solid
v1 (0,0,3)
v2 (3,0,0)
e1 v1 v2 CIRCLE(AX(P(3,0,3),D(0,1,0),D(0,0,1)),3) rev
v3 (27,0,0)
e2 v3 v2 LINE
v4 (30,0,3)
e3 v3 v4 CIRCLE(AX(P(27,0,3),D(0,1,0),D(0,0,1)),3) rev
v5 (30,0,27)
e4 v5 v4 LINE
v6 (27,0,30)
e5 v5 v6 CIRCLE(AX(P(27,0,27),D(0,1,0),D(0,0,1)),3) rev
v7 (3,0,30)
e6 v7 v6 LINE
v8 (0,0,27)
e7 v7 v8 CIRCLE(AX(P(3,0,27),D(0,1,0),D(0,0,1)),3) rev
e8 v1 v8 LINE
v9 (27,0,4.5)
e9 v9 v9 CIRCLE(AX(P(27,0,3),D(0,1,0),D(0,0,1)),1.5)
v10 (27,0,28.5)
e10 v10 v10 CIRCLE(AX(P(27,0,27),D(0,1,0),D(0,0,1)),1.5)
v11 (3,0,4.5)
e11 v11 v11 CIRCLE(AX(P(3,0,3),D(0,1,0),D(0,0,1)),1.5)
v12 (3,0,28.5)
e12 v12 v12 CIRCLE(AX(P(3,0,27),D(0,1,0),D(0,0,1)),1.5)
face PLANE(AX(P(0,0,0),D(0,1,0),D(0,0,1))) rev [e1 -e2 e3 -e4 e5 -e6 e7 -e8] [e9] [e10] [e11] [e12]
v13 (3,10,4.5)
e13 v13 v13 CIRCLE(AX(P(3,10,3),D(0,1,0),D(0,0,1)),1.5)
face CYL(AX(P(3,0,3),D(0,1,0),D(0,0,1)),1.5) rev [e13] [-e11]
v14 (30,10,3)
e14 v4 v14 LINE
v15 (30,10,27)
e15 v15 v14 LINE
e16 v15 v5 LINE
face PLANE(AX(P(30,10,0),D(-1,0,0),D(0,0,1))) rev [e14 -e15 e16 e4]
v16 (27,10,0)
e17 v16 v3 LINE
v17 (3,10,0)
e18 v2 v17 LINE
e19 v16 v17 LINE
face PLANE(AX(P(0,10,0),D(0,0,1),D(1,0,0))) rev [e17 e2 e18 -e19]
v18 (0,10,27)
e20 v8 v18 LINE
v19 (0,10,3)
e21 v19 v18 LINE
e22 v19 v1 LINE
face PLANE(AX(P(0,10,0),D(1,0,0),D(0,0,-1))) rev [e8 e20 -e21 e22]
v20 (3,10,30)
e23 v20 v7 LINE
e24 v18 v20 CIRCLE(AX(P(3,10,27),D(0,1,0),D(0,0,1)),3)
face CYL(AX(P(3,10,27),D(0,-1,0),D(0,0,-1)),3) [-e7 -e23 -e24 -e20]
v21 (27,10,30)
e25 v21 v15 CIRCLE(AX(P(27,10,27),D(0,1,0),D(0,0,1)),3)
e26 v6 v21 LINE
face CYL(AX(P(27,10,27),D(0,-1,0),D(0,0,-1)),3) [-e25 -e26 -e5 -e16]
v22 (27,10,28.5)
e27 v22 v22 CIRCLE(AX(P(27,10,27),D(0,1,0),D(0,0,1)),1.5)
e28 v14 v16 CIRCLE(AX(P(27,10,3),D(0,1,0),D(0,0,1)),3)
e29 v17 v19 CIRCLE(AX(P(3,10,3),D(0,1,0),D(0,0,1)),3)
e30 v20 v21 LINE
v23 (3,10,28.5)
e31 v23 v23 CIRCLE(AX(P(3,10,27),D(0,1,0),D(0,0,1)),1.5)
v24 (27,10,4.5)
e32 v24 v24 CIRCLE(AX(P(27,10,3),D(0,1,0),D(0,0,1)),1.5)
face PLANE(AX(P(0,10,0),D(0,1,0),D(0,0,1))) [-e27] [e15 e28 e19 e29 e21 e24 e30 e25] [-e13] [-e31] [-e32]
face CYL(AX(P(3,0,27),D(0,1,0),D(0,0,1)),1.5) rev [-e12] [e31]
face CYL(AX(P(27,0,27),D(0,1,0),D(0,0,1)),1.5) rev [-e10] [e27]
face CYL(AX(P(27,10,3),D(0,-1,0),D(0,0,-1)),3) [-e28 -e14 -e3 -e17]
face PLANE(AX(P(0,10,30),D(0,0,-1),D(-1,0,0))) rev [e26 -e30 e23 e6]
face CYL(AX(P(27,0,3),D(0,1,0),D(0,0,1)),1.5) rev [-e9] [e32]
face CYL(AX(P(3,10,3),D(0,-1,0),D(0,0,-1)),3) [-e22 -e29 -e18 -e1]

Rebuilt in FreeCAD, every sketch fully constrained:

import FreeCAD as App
import Part
import Sketcher


def edges_at(feature, points):
    """Names of the edges that pass closest to the given points."""
    edges = feature.Shape.Edges
    near = lambda p: min(range(len(edges)), key=lambda i: edges[i].distToShape(Part.Vertex(*p))[0])
    return sorted({f"Edge{near(p) + 1}" for p in points})


def add_polygon(sketch, points):
    """Adds a closed chain of lines whose ends are joined by coincident constraints."""
    first, n = sketch.GeometryCount, len(points)
    for a, b in zip(points, points[1:] + points[:1]):
        sketch.addGeometry(Part.LineSegment(App.Vector(*a, 0), App.Vector(*b, 0)), False)
    for i in range(n):
        sketch.addConstraint(Sketcher.Constraint("Coincident", first + i, 2, first + (i + 1) % n, 1))

doc = App.newDocument("Part")
body = doc.addObject("PartDesign::Body", "Body")

# Sketch on XZ plane
sketch1 = doc.addObject("Sketcher::SketchObject", "Sketch")
body.addObject(sketch1)
sketch1.AttachmentSupport = (doc.XZ_Plane, [""])
sketch1.MapMode = "FlatFace"
add_polygon(sketch1, [(0, 0), (0, 30), (30, 30), (30, 0)])  # lines 0-3
sketch1.addConstraint([
    Sketcher.Constraint("Vertical", 0),
    Sketcher.Constraint("Horizontal", 1),
    Sketcher.Constraint("Vertical", 2),
    Sketcher.Constraint("Horizontal", 3),
    Sketcher.Constraint("Coincident", 3, 2, -1, 1),
    Sketcher.Constraint("Equal", 3, 0),
    Sketcher.Constraint("DistanceX", 1, 1, 1, 2, 30.0),
])
pad1 = doc.addObject("PartDesign::Pad", "Pad")
body.addObject(pad1)
pad1.Profile = sketch1
pad1.Length = 10
pad1.Reversed = True

# Sketch on XZ plane
sketch2 = doc.addObject("Sketcher::SketchObject", "Sketch001")
body.addObject(sketch2)
sketch2.AttachmentSupport = (doc.XZ_Plane, [""])
sketch2.MapMode = "FlatFace"
sketch2.AttachmentOffset = App.Placement(App.Vector(0, 0, -10), App.Rotation())
sketch2.addGeometry([
    Part.Circle(App.Vector(3, 3, 0), App.Vector(0, 0, 1), 1.5),
    Part.Circle(App.Vector(27, 3, 0), App.Vector(0, 0, 1), 1.5),
    Part.Circle(App.Vector(27, 27, 0), App.Vector(0, 0, 1), 1.5),
    Part.Circle(App.Vector(3, 27, 0), App.Vector(0, 0, 1), 1.5),
], False)
sketch2.addConstraint([
    Sketcher.Constraint("Equal", 0, 1),
    Sketcher.Constraint("Equal", 1, 2),
    Sketcher.Constraint("Equal", 2, 3),
    Sketcher.Constraint("Horizontal", 0, 3, 1, 3),
    Sketcher.Constraint("Horizontal", 2, 3, 3, 3),
    Sketcher.Constraint("Vertical", 1, 3, 2, 3),
    Sketcher.Constraint("Vertical", 0, 3, 3, 3),
    Sketcher.Constraint("Diameter", 0, 3.0),
    Sketcher.Constraint("DistanceX", -1, 1, 0, 3, 3.0),
    Sketcher.Constraint("DistanceY", -1, 1, 0, 3, 3.0),
    Sketcher.Constraint("DistanceX", -1, 1, 1, 3, 27.0),
    Sketcher.Constraint("DistanceY", -1, 1, 2, 3, 27.0),
])
pocket1 = doc.addObject("PartDesign::Pocket", "Pocket")
body.addObject(pocket1)
pocket1.Profile = sketch2
pocket1.Length = 10
pocket1.Reversed = True
doc.recompute()

fillet = doc.addObject("PartDesign::Fillet", "Fillet")
body.addObject(fillet)
fillet.Base = (pocket1, edges_at(pocket1, [
    (0, 5, 0),
    (30, 5, 0),
    (30, 5, 30),
    (0, 5, 30),
]))
fillet.Radius = 3

doc.recompute()
